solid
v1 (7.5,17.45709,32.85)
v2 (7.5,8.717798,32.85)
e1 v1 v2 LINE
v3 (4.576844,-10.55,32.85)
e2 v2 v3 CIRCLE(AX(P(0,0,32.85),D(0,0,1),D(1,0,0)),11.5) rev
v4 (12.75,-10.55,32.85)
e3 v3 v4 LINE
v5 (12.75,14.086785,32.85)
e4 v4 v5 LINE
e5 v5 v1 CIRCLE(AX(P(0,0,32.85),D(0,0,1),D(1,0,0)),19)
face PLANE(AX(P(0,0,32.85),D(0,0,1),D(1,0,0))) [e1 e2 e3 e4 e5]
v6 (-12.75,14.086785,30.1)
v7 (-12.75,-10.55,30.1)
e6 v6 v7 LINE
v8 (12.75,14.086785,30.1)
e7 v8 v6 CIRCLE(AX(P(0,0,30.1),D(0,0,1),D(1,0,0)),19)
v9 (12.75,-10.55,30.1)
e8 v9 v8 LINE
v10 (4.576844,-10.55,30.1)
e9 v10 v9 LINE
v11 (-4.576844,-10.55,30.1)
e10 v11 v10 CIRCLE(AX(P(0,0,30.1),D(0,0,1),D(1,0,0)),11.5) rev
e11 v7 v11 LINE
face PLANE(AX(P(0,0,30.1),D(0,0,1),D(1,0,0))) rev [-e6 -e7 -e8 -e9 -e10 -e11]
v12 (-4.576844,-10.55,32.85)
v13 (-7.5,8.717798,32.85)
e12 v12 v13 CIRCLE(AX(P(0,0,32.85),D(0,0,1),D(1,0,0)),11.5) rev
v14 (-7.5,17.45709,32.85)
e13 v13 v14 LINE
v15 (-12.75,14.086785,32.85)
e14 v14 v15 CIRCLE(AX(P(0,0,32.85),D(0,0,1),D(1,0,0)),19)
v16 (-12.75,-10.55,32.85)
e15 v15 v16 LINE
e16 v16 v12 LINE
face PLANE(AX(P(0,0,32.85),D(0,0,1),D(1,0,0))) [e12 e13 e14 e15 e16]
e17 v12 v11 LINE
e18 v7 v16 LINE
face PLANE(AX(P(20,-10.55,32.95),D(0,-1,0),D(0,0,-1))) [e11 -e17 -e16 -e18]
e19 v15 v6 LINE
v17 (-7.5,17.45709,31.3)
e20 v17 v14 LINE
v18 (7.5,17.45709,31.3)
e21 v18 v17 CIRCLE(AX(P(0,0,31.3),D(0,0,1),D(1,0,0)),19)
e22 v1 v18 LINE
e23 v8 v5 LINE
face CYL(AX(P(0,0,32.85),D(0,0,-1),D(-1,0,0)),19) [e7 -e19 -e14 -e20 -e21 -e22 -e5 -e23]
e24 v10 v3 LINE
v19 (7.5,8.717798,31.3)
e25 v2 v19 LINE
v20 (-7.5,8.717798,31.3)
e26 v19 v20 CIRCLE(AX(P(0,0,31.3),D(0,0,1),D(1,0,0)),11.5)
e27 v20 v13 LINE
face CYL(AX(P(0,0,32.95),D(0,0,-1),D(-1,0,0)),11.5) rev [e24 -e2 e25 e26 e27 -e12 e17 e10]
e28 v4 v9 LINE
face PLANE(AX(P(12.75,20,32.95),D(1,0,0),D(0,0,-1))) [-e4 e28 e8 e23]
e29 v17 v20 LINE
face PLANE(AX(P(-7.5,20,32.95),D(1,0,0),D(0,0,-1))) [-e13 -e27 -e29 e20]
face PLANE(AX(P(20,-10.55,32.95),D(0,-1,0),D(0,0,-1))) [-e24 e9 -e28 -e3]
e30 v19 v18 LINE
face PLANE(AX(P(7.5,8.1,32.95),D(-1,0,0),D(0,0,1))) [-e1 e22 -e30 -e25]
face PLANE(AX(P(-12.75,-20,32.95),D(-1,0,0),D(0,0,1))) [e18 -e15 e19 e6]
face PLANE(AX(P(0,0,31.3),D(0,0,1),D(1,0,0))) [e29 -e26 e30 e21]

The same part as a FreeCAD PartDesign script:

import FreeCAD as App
import Part
import Sketcher

V = App.Vector
Q = App.Units.Quantity


def add_polygon(sketch, points):
    """Adds a closed chain of lines whose ends are joined by coincident constraints."""
    first, n = sketch.GeometryCount, len(points)
    for a, b in zip(points, points[1:] + points[:1]):
        sketch.addGeometry(Part.LineSegment(App.Vector(*a, 0), App.Vector(*b, 0)), False)
    for i in range(n):
        sketch.addConstraint(Sketcher.Constraint("Coincident", first + i, 2, first + (i + 1) % n, 1))

doc = App.newDocument("Part")
body = doc.addObject("PartDesign::Body", "Body")

sketch1 = body.newObject("Sketcher::SketchObject", "Sketch")
sketch1.AttachmentSupport = (doc.getObject("XY_Plane"), [""])
sketch1.MapMode = "FlatFace"
sketch1.AttachmentOffset = App.Placement(V(0, 0, 30.1), App.Rotation())
sketch1.addGeometry(Part.Circle(V(0, 0, 0), V(0, 0, 1), 19), False)
sketch1.addConstraint([
    Sketcher.Constraint("Coincident", 0, 3, -1, 1),
    Sketcher.Constraint("Diameter", 0, Q("38 mm")),
])
pad1 = body.newObject("PartDesign::Pad", "Pad")
pad1.Profile = sketch1
pad1.Length = 2.75

sketch2 = body.newObject("Sketcher::SketchObject", "Sketch001")
sketch2.AttachmentSupport = (doc.getObject("XY_Plane"), [""])
sketch2.MapMode = "FlatFace"
sketch2.AttachmentOffset = App.Placement(V(0, 0, 30), App.Rotation())
sketch2.addGeometry(Part.Circle(V(0, 0, 0), V(0, 0, 1), 12), False)
sketch2.addConstraint([
    Sketcher.Constraint("Coincident", 0, 3, -1, 1),
    Sketcher.Constraint("Diameter", 0, Q("23 mm")),
])
pocket1 = body.newObject("PartDesign::Pocket", "Pocket")
pocket1.Profile = sketch2
pocket1.Length = 2.95
pocket1.Reversed = True

sketch3 = body.newObject("Sketcher::SketchObject", "Sketch002")
sketch3.AttachmentSupport = (doc.getObject("XY_Plane"), [""])
sketch3.MapMode = "FlatFace"
sketch3.AttachmentOffset = App.Placement(V(0, 0, 30), App.Rotation())
add_polygon(sketch3, [(13, 20), (13, -20), (20, -20), (20, 20)])
sketch3.addConstraint([
    Sketcher.Constraint("Vertical", 0),
    Sketcher.Constraint("Horizontal", 1),
    Sketcher.Constraint("Vertical", 2),
    Sketcher.Constraint("Horizontal", 3),
    Sketcher.Constraint("DistanceY", 0, 2, 0, 1, Q("40 mm")),
    Sketcher.Constraint("DistanceY", 0, 2, -1, 1, Q("20 mm")),
    Sketcher.Constraint("DistanceX", -1, 1, 1, 2, Q("20 mm")),
    Sketcher.Constraint("DistanceX", 1, 1, 1, 2, Q("7.25 mm")),
])
pocket2 = body.newObject("PartDesign::Pocket", "Pocket001")
pocket2.Profile = sketch3
pocket2.Length = 2.95
pocket2.Reversed = True

sketch4 = body.newObject("Sketcher::SketchObject", "Sketch003")
sketch4.AttachmentSupport = (doc.getObject("XY_Plane"), [""])
sketch4.MapMode = "FlatFace"
sketch4.AttachmentOffset = App.Placement(V(0, 0, 30), App.Rotation())
add_polygon(sketch4, [(-20, 20), (-20, -20), (-13, -20), (-13, 20)])
sketch4.addConstraint([
    Sketcher.Constraint("Vertical", 0),
    Sketcher.Constraint("Horizontal", 1),
    Sketcher.Constraint("Vertical", 2),
    Sketcher.Constraint("Horizontal", 3),
    Sketcher.Constraint("DistanceY", 0, 2, 0, 1, Q("40 mm")),
    Sketcher.Constraint("DistanceX", 0, 2, -1, 1, Q("20 mm")),
    Sketcher.Constraint("DistanceY", 0, 2, -1, 1, Q("20 mm")),
    Sketcher.Constraint("DistanceX", 1, 1, 1, 2, Q("7.25 mm")),
])
pocket3 = body.newObject("PartDesign::Pocket", "Pocket002")
pocket3.Profile = sketch4
pocket3.Length = 2.95
pocket3.Reversed = True

sketch5 = body.newObject("Sketcher::SketchObject", "Sketch004")
sketch5.AttachmentSupport = (doc.getObject("XY_Plane"), [""])
sketch5.MapMode = "FlatFace"
sketch5.AttachmentOffset = App.Placement(V(0, 0, 30), App.Rotation())
add_polygon(sketch5, [(-20, -11), (-20, -20), (20, -20), (20, -11)])
sketch5.addConstraint([
    Sketcher.Constraint("Vertical", 0),
    Sketcher.Constraint("Horizontal", 1),
    Sketcher.Constraint("Vertical", 2),
    Sketcher.Constraint("Horizontal", 3),
    Sketcher.Constraint("DistanceX", 1, 1, 1, 2, Q("40 mm")),
    Sketcher.Constraint("DistanceX", 0, 2, -1, 1, Q("20 mm")),
    Sketcher.Constraint("DistanceY", 0, 2, -1, 1, Q("20 mm")),
    Sketcher.Constraint("DistanceY", 0, 2, 0, 1, Q("9.45 mm")),
])
pocket4 = body.newObject("PartDesign::Pocket", "Pocket003")
pocket4.Profile = sketch5
pocket4.Length = 2.95
pocket4.Reversed = True

sketch6 = body.newObject("Sketcher::SketchObject", "Sketch005")
sketch6.AttachmentSupport = (doc.getObject("XY_Plane"), [""])
sketch6.MapMode = "FlatFace"
sketch6.AttachmentOffset = App.Placement(V(0, 0, 31.3), App.Rotation())
add_polygon(sketch6, [(-8, 20), (-8, 8), (8, 8), (8, 20)])
sketch6.addConstraint([
    Sketcher.Constraint("Vertical", 0),
    Sketcher.Constraint("Horizontal", 1),
    Sketcher.Constraint("Vertical", 2),
    Sketcher.Constraint("Horizontal", 3),
    Sketcher.Constraint("DistanceX", 1, 1, 1, 2, Q("15 mm")),
    Sketcher.Constraint("DistanceY", 0, 2, 0, 1, Q("11.9 mm")),
    Sketcher.Constraint("DistanceY", -1, 1, 2, 2, Q("20 mm")),
    Sketcher.Constraint("DistanceX", 0, 2, -1, 1, Q("7.5 mm")),
])
pocket5 = body.newObject("PartDesign::Pocket", "Pocket004")
pocket5.Profile = sketch6
pocket5.Length = 1.65
pocket5.Reversed = True

doc.recompute()
